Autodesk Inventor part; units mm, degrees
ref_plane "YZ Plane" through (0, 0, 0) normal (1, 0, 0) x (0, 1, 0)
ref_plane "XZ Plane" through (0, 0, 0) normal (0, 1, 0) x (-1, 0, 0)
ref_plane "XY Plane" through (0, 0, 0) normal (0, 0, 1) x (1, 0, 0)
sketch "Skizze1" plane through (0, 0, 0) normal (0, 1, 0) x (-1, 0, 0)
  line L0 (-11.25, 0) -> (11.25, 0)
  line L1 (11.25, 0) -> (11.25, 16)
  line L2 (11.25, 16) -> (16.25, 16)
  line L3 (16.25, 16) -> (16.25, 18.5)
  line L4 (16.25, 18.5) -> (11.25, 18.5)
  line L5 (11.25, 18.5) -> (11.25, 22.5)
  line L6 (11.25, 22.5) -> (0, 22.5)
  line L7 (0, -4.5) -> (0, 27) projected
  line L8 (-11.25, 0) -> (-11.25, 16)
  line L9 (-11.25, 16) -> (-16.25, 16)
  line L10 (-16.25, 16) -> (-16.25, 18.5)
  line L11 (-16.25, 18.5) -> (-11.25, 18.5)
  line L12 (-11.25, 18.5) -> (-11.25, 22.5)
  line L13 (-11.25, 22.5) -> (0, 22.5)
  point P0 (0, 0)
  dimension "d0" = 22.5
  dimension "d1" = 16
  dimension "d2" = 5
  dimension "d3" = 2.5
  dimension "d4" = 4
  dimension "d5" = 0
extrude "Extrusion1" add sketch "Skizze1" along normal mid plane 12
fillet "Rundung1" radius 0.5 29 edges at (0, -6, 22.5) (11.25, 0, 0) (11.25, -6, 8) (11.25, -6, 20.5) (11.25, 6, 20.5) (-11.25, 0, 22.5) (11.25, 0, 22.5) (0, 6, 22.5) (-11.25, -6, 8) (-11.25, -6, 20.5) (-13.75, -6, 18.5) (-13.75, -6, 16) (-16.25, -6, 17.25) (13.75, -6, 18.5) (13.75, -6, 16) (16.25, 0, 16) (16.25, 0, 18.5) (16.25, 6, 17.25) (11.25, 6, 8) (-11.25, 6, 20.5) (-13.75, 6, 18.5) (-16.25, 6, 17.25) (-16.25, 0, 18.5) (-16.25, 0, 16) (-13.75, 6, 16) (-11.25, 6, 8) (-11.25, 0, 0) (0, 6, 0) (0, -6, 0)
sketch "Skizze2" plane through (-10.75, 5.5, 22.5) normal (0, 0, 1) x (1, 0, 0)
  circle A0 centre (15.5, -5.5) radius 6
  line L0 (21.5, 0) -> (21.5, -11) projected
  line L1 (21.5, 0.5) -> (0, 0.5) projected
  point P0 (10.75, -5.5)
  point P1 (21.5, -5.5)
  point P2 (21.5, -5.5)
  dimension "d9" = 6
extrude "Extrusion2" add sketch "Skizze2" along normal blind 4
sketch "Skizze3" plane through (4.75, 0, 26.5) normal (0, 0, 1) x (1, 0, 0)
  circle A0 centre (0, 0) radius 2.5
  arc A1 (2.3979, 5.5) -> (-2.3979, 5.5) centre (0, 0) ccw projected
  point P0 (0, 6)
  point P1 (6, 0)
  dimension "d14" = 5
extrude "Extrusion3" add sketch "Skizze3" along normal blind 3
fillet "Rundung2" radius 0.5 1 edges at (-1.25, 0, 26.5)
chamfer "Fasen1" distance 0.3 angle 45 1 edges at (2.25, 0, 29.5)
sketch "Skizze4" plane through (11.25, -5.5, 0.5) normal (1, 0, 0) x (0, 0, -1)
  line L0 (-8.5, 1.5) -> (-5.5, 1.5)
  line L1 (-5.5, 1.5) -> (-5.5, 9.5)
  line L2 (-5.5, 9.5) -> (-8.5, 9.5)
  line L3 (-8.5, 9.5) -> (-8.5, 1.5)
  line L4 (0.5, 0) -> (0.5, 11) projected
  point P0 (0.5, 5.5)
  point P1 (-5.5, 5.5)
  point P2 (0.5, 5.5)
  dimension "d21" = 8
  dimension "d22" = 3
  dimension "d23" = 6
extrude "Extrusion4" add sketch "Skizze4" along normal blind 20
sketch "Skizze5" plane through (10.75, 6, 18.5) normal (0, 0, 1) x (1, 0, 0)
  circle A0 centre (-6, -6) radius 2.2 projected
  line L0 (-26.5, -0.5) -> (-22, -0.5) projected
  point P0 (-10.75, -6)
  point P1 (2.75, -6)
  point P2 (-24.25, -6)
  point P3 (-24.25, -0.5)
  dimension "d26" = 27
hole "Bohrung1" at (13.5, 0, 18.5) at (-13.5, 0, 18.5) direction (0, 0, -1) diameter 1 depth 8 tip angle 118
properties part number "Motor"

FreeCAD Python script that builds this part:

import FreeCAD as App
import Part
import Sketcher


def edges_at(feature, points):
    """Names of the edges that pass closest to the given points."""
    edges = feature.Shape.Edges
    near = lambda p: min(range(len(edges)), key=lambda i: edges[i].distToShape(Part.Vertex(*p))[0])
    return sorted({f"Edge{near(p) + 1}" for p in points})


def add_polygon(sketch, points):
    """Adds a closed chain of lines whose ends are joined by coincident constraints."""
    first, n = sketch.GeometryCount, len(points)
    for a, b in zip(points, points[1:] + points[:1]):
        sketch.addGeometry(Part.LineSegment(App.Vector(*a, 0), App.Vector(*b, 0)), False)
    for i in range(n):
        sketch.addConstraint(Sketcher.Constraint("Coincident", first + i, 2, first + (i + 1) % n, 1))

doc = App.newDocument("Part")
body = doc.addObject("PartDesign::Body", "Body")

sketch1 = doc.addObject("Sketcher::SketchObject", "Sketch")
body.addObject(sketch1)
sketch1.AttachmentSupport = (doc.XZ_Plane, [""])
sketch1.MapMode = "FlatFace"
add_polygon(sketch1, [(11.25, 16), (11.25, 0), (-11.25, 0), (-11.25, 16), (-16.25, 16), (-16.25, 18.5), (-11.25, 18.5), (-11.25, 22.5), (11.25, 22.5), (11.25, 18.5), (16.25, 18.5), (16.25, 16)])
sketch1.addConstraint([
    Sketcher.Constraint("Vertical", 0),
    Sketcher.Constraint("Horizontal", 1),
    Sketcher.Constraint("Vertical", 2),
    Sketcher.Constraint("Horizontal", 3),
    Sketcher.Constraint("Vertical", 4),
    Sketcher.Constraint("Horizontal", 5),
    Sketcher.Constraint("Vertical", 6),
    Sketcher.Constraint("Horizontal", 7),
    Sketcher.Constraint("Vertical", 8),
    Sketcher.Constraint("Horizontal", 9),
    Sketcher.Constraint("Vertical", 10),
    Sketcher.Constraint("Horizontal", 11),
    Sketcher.Constraint("Symmetric", 0, 2, 1, 2, -1, 1),
    Sketcher.Constraint("Symmetric", 5, 2, 8, 2, -2),
    Sketcher.Constraint("Symmetric", 3, 2, 10, 2, -2),
    Sketcher.Constraint("Vertical", 2, 2, 5, 2),
    Sketcher.Constraint("DistanceX", 3, 2, 3, 1, 5.0),
    Sketcher.Constraint("DistanceY", 0, 2, 0, 1, 16.0),
    Sketcher.Constraint("DistanceY", 6, 1, 6, 2, 4.0),
    Sketcher.Constraint("DistanceX", 1, 2, 1, 1, 22.5),
    Sketcher.Constraint("DistanceY", 4, 1, 4, 2, 2.5),
])
pad1 = doc.addObject("PartDesign::Pad", "Pad")
body.addObject(pad1)
pad1.Profile = sketch1
pad1.Length = 12
pad1.Midplane = True
doc.recompute()

fillet = doc.addObject("PartDesign::Fillet", "Fillet")
body.addObject(fillet)
fillet.Base = (pad1, edges_at(pad1, [
    (0, -6, 22.5),
    (11.25, 0, 0),
    (11.25, -6, 8),
    (11.25, -6, 20.5),
    (11.25, 6, 20.5),
    (-11.25, 0, 22.5),
    (11.25, 0, 22.5),
    (0, 6, 22.5),
    (-11.25, -6, 8),
    (-11.25, -6, 20.5),
    (-13.75, -6, 18.5),
    (-13.75, -6, 16),
    (-16.25, -6, 17.25),
    (13.75, -6, 18.5),
    (13.75, -6, 16),
    (16.25, 0, 16),
    (16.25, 0, 18.5),
    (16.25, 6, 17.25),
    (11.25, 6, 8),
    (-11.25, 6, 20.5),
    (-13.75, 6, 18.5),
    (-16.25, 6, 17.25),
    (-16.25, 0, 18.5),
    (-16.25, 0, 16),
    (-13.75, 6, 16),
    (-11.25, 6, 8),
    (-11.25, 0, 0),
    (0, 6, 0),
    (0, -6, 0),
]))
fillet.Radius = 0.5

sketch2 = doc.addObject("Sketcher::SketchObject", "Sketch001")
body.addObject(sketch2)
sketch2.AttachmentSupport = (doc.XY_Plane, [""])
sketch2.MapMode = "FlatFace"
sketch2.AttachmentOffset = App.Placement(App.Vector(0, 0, 22.5), App.Rotation())
sketch2.addGeometry(Part.Circle(App.Vector(4.75, 0, 0), App.Vector(0, 0, 1), 6), False)
sketch2.addConstraint([
    Sketcher.Constraint("PointOnObject", 0, 3, -1),
    Sketcher.Constraint("Diameter", 0, 12.0),
    Sketcher.Constraint("DistanceX", -1, 1, 0, 3, 4.75),
])
pad2 = doc.addObject("PartDesign::Pad", "Pad001")
body.addObject(pad2)
pad2.Profile = sketch2
pad2.Length = 4

sketch3 = doc.addObject("Sketcher::SketchObject", "Sketch002")
body.addObject(sketch3)
sketch3.AttachmentSupport = (doc.XY_Plane, [""])
sketch3.MapMode = "FlatFace"
sketch3.AttachmentOffset = App.Placement(App.Vector(0, 0, 26.5), App.Rotation())
sketch3.addGeometry(Part.Circle(App.Vector(4.75, 0, 0), App.Vector(0, 0, 1), 2.5), False)
sketch3.addConstraint([
    Sketcher.Constraint("PointOnObject", 0, 3, -1),
    Sketcher.Constraint("Diameter", 0, 5.0),
    Sketcher.Constraint("DistanceX", -1, 1, 0, 3, 4.75),
])
pad3 = doc.addObject("PartDesign::Pad", "Pad002")
body.addObject(pad3)
pad3.Profile = sketch3
pad3.Length = 3
doc.recompute()

fillet2 = doc.addObject("PartDesign::Fillet", "Fillet001")
body.addObject(fillet2)
fillet2.Base = (pad3, edges_at(pad3, [(-1.25, 0, 26.5)]))
fillet2.Radius = 0.5
doc.recompute()

chamfer = doc.addObject("PartDesign::Chamfer", "Chamfer")
body.addObject(chamfer)
chamfer.Base = (fillet2, edges_at(fillet2, [(2.25, 0, 29.5)]))
chamfer.Size = 0.3

sketch4 = doc.addObject("Sketcher::SketchObject", "Sketch003")
body.addObject(sketch4)
sketch4.AttachmentSupport = (doc.YZ_Plane, [""])
sketch4.MapMode = "FlatFace"
sketch4.AttachmentOffset = App.Placement(App.Vector(0, 0, 11.25), App.Rotation())
add_polygon(sketch4, [(4, 9), (-4, 9), (-4, 6), (4, 6)])
sketch4.addConstraint([
    Sketcher.Constraint("Horizontal", 0),
    Sketcher.Constraint("Vertical", 1),
    Sketcher.Constraint("Horizontal", 2),
    Sketcher.Constraint("Vertical", 3),
    Sketcher.Constraint("DistanceX", 0, 2, 0, 1, 8.0),
    Sketcher.Constraint("DistanceY", 1, 2, 1, 1, 3.0),
    Sketcher.Constraint("DistanceY", -1, 1, 1, 2, 6.0),
    Sketcher.Constraint("DistanceX", 0, 2, -1, 1, 4.0),
])
pad4 = doc.addObject("PartDesign::Pad", "Pad003")
body.addObject(pad4)
pad4.Profile = sketch4
pad4.Length = 20

sketch5 = doc.addObject("Sketcher::SketchObject", "Sketch004")
body.addObject(sketch5)
sketch5.AttachmentSupport = (doc.XY_Plane, [""])
sketch5.MapMode = "FlatFace"
sketch5.AttachmentOffset = App.Placement(App.Vector(0, 0, 18.5), App.Rotation())
sketch5.addGeometry([
    Part.Circle(App.Vector(13.5, 0, 0), App.Vector(0, 0, 1), 0.5),
    Part.Circle(App.Vector(-13.5, 0, 0), App.Vector(0, 0, 1), 0.5),
], False)
sketch5.addConstraint([
    Sketcher.Constraint("Equal", 0, 1),
    Sketcher.Constraint("Symmetric", 0, 3, 1, 3, -1, 1),
    Sketcher.Constraint("PointOnObject", 0, 3, -1),
    Sketcher.Constraint("Diameter", 0, 1.0),
    Sketcher.Constraint("DistanceX", 1, 3, 0, 3, 27.0),
])
doc.recompute()
hole = doc.addObject("PartDesign::Hole", "Hole")
body.addObject(hole)
hole.Profile = sketch5
hole.ThreadType = "None"
hole.Diameter = 1
hole.DepthType = "Dimension"
hole.Depth = 8
hole.DrillPoint = "Angled"
hole.DrillPointAngle = 118

doc.recompute()
